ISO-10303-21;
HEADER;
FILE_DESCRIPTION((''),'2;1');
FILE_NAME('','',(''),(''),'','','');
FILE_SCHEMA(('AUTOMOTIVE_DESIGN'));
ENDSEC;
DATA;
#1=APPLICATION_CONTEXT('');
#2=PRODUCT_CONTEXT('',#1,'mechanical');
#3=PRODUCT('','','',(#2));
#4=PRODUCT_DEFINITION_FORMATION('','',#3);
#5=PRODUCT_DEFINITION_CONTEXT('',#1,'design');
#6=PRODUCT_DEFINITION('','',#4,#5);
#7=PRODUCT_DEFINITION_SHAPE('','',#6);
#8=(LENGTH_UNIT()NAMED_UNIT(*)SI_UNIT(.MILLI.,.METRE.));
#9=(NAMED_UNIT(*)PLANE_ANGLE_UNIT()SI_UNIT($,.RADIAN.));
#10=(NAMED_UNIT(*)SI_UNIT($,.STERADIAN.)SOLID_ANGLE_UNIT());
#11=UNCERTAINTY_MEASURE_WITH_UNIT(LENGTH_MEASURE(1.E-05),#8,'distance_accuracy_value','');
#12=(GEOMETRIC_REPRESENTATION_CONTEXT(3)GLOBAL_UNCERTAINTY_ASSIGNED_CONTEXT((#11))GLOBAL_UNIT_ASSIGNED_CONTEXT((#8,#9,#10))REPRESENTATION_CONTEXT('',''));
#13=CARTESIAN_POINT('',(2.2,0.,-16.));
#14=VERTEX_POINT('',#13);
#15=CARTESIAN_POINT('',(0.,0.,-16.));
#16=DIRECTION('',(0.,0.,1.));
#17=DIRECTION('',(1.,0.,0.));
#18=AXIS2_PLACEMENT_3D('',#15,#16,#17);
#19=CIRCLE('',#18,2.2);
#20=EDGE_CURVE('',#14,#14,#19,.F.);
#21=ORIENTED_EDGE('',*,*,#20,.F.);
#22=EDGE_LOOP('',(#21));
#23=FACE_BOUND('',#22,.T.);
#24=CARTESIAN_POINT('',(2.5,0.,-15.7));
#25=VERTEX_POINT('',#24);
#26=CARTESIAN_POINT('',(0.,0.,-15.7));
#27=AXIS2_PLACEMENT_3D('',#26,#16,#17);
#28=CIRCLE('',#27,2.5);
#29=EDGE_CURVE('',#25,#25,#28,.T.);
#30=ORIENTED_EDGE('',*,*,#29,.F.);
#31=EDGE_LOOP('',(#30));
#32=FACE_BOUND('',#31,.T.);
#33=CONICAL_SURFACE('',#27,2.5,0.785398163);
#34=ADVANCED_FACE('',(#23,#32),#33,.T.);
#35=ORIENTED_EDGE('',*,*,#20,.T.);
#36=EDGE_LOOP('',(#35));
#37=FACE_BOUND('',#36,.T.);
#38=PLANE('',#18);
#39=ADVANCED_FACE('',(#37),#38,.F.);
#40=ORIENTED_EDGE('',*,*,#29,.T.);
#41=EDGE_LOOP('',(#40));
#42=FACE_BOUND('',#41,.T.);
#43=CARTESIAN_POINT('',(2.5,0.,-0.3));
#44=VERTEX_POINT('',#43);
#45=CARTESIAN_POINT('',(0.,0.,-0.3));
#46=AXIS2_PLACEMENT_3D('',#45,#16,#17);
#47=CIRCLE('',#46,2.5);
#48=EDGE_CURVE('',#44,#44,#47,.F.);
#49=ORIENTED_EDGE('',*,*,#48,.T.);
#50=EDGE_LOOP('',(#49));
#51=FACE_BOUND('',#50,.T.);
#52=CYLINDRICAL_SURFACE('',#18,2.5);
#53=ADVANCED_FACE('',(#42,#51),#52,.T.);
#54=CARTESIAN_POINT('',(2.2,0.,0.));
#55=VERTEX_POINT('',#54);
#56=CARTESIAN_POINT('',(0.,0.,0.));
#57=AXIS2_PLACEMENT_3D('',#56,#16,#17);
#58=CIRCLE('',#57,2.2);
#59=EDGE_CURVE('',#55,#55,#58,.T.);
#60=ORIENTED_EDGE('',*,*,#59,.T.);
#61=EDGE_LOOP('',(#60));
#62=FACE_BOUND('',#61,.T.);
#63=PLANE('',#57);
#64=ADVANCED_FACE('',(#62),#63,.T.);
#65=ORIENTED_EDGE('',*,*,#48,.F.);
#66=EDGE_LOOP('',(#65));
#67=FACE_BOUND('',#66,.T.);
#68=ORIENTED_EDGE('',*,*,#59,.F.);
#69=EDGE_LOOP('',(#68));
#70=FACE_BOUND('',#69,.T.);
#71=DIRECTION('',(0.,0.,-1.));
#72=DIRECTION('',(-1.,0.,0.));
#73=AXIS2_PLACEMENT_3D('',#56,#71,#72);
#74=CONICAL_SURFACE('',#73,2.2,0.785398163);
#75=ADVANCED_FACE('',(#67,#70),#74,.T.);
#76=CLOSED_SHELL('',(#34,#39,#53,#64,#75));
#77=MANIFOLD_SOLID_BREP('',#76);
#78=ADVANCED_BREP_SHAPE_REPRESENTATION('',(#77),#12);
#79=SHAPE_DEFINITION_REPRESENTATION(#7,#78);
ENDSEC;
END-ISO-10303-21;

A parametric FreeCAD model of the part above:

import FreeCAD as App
import Part
import Sketcher

V = App.Vector
Q = App.Units.Quantity


def edges_at(feature, points):
    """Names of the edges that pass closest to the given points."""
    edges = feature.Shape.Edges
    near = lambda p: min(range(len(edges)), key=lambda i: edges[i].distToShape(Part.Vertex(*p))[0])
    return sorted({f"Edge{near(p) + 1}" for p in points})

doc = App.newDocument("Part")
body = doc.addObject("PartDesign::Body", "Body")

sketch1 = body.newObject("Sketcher::SketchObject", "Sketch")
sketch1.AttachmentSupport = (doc.getObject("XY_Plane"), [""])
sketch1.MapMode = "FlatFace"
sketch1.addGeometry(Part.Circle(V(0, 0, 0), V(0, 0, 1), 2.5), False)
sketch1.addConstraint(Sketcher.Constraint("Coincident", 0, 3, -1, 1))
sketch1.addConstraint(Sketcher.Constraint("Diameter", 0, Q("5 mm")))
pad1 = body.newObject("PartDesign::Pad", "Pad")
pad1.Profile = sketch1
pad1.Length = 16
pad1.Reversed = True
doc.recompute()

chamfer = body.newObject("PartDesign::Chamfer", "Chamfer")
chamfer.Base = (pad1, edges_at(pad1, [(-2.5, 0, 0), (-2.5, 0, -16)]))
chamfer.Size = 0.3

doc.recompute()
